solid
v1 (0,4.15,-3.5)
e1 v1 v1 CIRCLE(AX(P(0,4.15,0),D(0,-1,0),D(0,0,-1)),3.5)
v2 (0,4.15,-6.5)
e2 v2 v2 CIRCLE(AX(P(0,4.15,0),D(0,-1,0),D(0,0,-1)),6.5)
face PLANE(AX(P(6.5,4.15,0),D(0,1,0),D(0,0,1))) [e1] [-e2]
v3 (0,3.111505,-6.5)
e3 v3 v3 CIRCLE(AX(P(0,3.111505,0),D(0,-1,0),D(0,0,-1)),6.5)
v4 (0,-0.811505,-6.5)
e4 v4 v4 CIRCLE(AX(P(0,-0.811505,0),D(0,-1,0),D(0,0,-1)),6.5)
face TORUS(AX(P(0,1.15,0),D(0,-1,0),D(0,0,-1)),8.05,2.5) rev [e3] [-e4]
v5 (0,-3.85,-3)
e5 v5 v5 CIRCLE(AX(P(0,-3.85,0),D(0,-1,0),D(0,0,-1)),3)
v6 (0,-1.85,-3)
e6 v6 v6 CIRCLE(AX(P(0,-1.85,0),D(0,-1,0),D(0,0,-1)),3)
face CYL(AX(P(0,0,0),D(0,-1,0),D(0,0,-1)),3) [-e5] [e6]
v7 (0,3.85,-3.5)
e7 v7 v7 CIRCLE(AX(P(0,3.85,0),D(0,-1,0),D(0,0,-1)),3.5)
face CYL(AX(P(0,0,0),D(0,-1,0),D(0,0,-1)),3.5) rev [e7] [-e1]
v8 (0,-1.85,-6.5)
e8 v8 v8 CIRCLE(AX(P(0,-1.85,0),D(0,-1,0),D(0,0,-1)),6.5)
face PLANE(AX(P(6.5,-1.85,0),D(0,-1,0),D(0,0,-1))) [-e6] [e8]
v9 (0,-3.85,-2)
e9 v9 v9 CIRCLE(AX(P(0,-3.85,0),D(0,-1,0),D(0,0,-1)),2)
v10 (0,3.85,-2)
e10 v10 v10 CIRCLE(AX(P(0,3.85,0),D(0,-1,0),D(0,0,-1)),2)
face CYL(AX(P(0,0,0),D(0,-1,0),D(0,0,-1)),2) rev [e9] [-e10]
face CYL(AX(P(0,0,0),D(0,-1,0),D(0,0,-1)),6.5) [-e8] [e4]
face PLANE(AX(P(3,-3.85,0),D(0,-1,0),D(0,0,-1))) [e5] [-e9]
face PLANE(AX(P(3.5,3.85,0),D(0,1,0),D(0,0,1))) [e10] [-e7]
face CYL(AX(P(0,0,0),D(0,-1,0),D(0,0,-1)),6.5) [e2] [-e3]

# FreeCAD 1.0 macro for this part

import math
import FreeCAD as App
import Part
import Sketcher

doc = App.newDocument("Part")
body = doc.addObject("PartDesign::Body", "Body")

sketch1 = body.newObject("Sketcher::SketchObject", "Sketch")
sketch1.AttachmentSupport = (doc.getObject("XY_Plane"), [""])
sketch1.MapMode = "FlatFace"
sketch1.addGeometry([
    Part.LineSegment(App.Vector(2, 3.85, 0), App.Vector(2, -3.85, 0)),
    Part.LineSegment(App.Vector(2, -3.85, 0), App.Vector(3, -3.85, 0)),
    Part.LineSegment(App.Vector(3, -3.85, 0), App.Vector(3, -1.85, 0)),
    Part.LineSegment(App.Vector(3, -1.85, 0), App.Vector(6.5, -1.85, 0)),
    Part.LineSegment(App.Vector(6.5, -1.85, 0), App.Vector(6.5, -0.81, 0)),
    Part.ArcOfCircle(Part.Circle(App.Vector(8.05, 1.15, 0), App.Vector(0, 0, 1), 2.5), math.radians(128), math.radians(232)),
    Part.LineSegment(App.Vector(6.5, 3.11, 0), App.Vector(6.5, 4.15, 0)),
    Part.LineSegment(App.Vector(6.5, 4.15, 0), App.Vector(3.5, 4.15, 0)),
    Part.LineSegment(App.Vector(3.5, 4.15, 0), App.Vector(3.5, 3.85, 0)),
    Part.LineSegment(App.Vector(3.5, 3.85, 0), App.Vector(2, 3.85, 0)),
], False)
sketch1.addConstraint([
    Sketcher.Constraint("Coincident", 0, 2, 1, 1),
    Sketcher.Constraint("Coincident", 1, 2, 2, 1),
    Sketcher.Constraint("Coincident", 2, 2, 3, 1),
    Sketcher.Constraint("Coincident", 3, 2, 4, 1),
    Sketcher.Constraint("Coincident", 4, 2, 5, 2),
    Sketcher.Constraint("Coincident", 5, 1, 6, 1),
    Sketcher.Constraint("Coincident", 6, 2, 7, 1),
    Sketcher.Constraint("Coincident", 7, 2, 8, 1),
    Sketcher.Constraint("Coincident", 8, 2, 9, 1),
    Sketcher.Constraint("Coincident", 9, 2, 0, 1),
    Sketcher.Constraint("Vertical", 0),
    Sketcher.Constraint("Horizontal", 1),
    Sketcher.Constraint("Vertical", 2),
    Sketcher.Constraint("Horizontal", 3),
    Sketcher.Constraint("Vertical", 4),
    Sketcher.Constraint("Vertical", 6),
    Sketcher.Constraint("Horizontal", 7),
    Sketcher.Constraint("Vertical", 8),
    Sketcher.Constraint("Horizontal", 9),
    Sketcher.Constraint("Vertical", 4, 2, 5, 1),
    Sketcher.Constraint("Equal", 4, 6),
    Sketcher.Constraint("Radius", 5, 2.5),
    Sketcher.Constraint("DistanceX", 1, 1, 1, 2, 1.0),
    Sketcher.Constraint("DistanceX", 7, 2, 7, 1, 3.0),
    Sketcher.Constraint("DistanceY", 2, 1, 2, 2, 2.0),
    Sketcher.Constraint("DistanceX", 3, 1, 3, 2, 3.5),
    Sketcher.Constraint("DistanceY", 0, 2, 0, 1, 7.7),
    Sketcher.Constraint("DistanceY", 8, 2, 8, 1, 0.3),
    Sketcher.Constraint("DistanceX", -1, 1, 0, 2, 2.0),
    Sketcher.Constraint("DistanceX", -1, 1, 5, 3, 8.05),
    Sketcher.Constraint("DistanceY", -1, 1, 5, 3, 1.15),
])
revolution = body.newObject("PartDesign::Revolution", "Revolution")
revolution.Profile = sketch1
revolution.ReferenceAxis = (sketch1, ["V_Axis"])
revolution.Angle = 360

doc.recompute()
